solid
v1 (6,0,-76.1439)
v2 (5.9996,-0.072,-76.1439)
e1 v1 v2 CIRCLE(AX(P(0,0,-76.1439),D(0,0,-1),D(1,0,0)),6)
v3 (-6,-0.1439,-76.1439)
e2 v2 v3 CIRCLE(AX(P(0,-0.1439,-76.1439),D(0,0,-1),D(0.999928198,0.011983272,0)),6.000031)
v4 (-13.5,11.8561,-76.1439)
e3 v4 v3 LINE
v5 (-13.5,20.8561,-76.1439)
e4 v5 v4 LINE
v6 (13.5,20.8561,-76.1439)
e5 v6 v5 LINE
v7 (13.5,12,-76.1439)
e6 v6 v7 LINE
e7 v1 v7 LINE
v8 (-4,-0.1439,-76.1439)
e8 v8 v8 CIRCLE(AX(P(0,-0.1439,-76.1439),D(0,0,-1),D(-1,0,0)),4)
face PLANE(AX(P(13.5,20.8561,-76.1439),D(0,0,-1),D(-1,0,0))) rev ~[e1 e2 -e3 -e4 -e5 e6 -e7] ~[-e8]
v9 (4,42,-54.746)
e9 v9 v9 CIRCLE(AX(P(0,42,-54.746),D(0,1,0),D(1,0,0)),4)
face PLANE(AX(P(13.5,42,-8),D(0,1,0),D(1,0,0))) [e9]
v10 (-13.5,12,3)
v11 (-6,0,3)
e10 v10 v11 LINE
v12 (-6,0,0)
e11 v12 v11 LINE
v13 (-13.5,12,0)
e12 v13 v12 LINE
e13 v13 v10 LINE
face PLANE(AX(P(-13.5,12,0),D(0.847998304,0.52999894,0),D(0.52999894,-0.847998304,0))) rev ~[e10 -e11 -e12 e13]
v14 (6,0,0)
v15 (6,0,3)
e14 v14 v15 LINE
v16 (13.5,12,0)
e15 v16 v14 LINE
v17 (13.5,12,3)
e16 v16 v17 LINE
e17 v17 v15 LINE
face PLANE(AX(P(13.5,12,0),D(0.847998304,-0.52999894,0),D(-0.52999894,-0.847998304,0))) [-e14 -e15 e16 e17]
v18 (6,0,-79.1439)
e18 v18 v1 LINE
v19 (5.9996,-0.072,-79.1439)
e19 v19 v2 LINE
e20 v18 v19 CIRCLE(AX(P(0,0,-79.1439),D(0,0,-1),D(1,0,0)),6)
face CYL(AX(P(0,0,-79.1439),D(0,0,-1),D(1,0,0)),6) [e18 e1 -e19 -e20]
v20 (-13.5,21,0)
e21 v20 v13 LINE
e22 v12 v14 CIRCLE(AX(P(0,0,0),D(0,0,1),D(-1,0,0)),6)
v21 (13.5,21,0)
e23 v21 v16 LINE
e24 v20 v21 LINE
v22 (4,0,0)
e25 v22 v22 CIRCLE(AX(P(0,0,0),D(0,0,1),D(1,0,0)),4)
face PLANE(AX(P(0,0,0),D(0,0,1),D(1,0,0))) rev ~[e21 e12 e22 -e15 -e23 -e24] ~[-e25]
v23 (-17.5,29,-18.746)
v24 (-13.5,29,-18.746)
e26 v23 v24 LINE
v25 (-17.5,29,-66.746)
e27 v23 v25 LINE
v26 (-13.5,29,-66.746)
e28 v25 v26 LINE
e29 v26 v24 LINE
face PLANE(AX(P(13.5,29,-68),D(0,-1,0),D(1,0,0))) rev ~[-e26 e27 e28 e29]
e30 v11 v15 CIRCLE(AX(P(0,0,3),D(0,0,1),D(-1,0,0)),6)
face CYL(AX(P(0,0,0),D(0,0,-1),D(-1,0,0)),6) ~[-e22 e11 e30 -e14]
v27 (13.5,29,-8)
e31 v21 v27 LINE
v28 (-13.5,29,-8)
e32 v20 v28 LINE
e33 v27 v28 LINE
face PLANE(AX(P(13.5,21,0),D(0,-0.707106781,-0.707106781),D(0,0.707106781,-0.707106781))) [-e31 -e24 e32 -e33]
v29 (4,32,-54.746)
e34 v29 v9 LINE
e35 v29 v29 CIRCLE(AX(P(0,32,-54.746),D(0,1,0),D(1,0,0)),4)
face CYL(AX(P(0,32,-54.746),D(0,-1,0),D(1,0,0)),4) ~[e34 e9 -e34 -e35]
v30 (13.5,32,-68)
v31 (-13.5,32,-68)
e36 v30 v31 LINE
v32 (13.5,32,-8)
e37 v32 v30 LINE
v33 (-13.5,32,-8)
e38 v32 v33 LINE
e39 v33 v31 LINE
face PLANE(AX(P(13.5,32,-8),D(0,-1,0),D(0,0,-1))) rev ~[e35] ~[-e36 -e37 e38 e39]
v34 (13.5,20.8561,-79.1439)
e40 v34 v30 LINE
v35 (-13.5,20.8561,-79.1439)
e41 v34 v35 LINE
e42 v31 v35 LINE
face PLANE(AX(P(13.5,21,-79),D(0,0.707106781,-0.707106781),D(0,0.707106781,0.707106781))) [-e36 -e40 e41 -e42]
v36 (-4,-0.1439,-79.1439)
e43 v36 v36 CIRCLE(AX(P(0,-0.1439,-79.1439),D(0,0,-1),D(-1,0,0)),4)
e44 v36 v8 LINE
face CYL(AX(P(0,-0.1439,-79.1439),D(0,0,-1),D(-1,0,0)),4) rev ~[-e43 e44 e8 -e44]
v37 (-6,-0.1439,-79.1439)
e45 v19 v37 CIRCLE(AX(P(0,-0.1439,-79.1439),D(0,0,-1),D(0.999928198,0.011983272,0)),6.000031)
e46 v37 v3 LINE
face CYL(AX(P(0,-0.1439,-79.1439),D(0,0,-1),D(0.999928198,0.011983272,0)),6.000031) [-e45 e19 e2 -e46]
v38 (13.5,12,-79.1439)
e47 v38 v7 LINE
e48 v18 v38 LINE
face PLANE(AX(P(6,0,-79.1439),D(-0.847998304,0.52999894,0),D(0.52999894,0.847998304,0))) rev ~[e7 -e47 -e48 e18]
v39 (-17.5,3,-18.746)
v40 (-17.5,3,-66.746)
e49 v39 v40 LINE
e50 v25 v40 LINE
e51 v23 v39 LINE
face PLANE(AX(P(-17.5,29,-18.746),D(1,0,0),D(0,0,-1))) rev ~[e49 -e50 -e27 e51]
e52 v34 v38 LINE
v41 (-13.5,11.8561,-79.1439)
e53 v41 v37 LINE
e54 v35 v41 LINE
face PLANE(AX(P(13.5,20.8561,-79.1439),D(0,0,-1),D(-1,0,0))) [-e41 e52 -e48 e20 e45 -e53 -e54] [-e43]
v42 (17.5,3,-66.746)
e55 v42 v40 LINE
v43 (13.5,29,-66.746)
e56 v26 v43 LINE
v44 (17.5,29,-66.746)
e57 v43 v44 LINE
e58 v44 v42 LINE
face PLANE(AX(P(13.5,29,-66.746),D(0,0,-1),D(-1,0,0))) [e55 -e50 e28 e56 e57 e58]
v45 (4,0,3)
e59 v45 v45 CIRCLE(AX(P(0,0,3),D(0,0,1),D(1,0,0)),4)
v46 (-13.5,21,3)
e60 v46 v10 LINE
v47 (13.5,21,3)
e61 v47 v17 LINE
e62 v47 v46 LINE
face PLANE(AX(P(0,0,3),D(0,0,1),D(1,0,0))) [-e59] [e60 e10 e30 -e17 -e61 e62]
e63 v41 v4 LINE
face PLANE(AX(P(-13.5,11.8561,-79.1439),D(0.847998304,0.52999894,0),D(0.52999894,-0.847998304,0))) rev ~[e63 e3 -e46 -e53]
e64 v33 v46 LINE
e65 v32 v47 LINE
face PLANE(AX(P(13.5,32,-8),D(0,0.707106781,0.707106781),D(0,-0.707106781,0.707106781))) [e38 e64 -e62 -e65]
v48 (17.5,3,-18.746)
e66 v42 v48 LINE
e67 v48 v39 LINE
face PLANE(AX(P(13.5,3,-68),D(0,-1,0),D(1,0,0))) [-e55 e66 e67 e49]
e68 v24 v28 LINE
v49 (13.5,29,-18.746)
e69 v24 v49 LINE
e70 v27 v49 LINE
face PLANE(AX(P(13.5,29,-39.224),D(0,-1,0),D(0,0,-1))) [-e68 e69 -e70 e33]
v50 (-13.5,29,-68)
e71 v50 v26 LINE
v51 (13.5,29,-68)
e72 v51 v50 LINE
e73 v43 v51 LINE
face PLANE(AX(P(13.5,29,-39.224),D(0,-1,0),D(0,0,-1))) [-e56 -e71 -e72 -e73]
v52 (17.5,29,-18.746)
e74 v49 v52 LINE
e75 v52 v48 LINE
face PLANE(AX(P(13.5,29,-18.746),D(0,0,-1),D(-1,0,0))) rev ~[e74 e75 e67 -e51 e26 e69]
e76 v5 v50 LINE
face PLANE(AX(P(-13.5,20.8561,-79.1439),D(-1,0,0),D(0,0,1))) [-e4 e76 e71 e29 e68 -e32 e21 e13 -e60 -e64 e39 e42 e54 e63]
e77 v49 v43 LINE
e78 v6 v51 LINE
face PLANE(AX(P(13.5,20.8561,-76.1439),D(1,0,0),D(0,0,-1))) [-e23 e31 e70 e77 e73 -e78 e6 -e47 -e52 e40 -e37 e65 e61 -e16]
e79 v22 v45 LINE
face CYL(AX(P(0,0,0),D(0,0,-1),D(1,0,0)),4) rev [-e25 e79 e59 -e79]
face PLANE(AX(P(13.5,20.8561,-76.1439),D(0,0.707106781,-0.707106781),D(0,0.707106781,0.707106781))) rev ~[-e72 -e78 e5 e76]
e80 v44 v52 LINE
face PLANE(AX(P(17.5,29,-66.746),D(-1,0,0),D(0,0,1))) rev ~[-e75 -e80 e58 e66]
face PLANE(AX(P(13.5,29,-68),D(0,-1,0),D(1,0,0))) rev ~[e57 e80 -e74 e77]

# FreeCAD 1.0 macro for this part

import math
import FreeCAD as App
import Part
import Sketcher
Q = App.Units.Quantity

doc = App.newDocument("Part")
params = doc.addObject("Spreadsheet::Sheet", "Params")
for row, (alias, value) in enumerate([
    ("sketch1_diameter", "8 mm"),
    ("sketch1_radius", "6 mm"),
    ("sketch1_width", "27 mm"),
    ("sketch1_height", "9 mm"),
    ("pad1_length", "3 mm"),
    ("sketch2_height", "60 mm"),
    ("sketch2_height2", "3 mm"),
    ("pad2_length", "27 mm"),
    ("sketch3_width", "27 mm"),
    ("sketch3_height", "3 mm"),
    ("pad3_length", "45 mm"),
    ("sketch4_width", "35 mm"),
    ("sketch4_height", "48 mm"),
    ("pad4_length", "26 mm"),
    ("sketch5_diameter", "8 mm"),
    ("pad5_length", "10 mm"),
    ("sketch6_diameter", "8 mm"),
    ("sketch6_radius", "6 mm"),
    ("sketch6_width", "27 mm"),
    ("sketch6_height", "36 mm"),
    ("pocket1_length", "4 mm"),
], start=1):
    params.set(f"A{row}", alias)
    params.set(f"B{row}", "=" + value)
    params.setAlias(f"B{row}", alias)

body = doc.addObject("PartDesign::Body", "Body")

# Sketch on XY plane
sketch1 = body.newObject("Sketcher::SketchObject", "Sketch")
sketch1.AttachmentSupport = (doc.getObject("XY_Plane"), [""])
sketch1.MapMode = "FlatFace"
sketch1.addGeometry([
    Part.LineSegment(App.Vector(-13.5, 12, 0), App.Vector(-6, 0, 0)),  # 0
    Part.ArcOfCircle(Part.Circle(App.Vector(0, 0, 0), App.Vector(0, 0, 1), 6), math.radians(180), math.radians(360)),  # 1
    Part.LineSegment(App.Vector(6, 0, 0), App.Vector(13.5, 12, 0)),  # 2
    Part.LineSegment(App.Vector(13.5, 12, 0), App.Vector(13.5, 21, 0)),  # 3
    Part.LineSegment(App.Vector(13.5, 21, 0), App.Vector(-13.5, 21, 0)),  # 4
    Part.LineSegment(App.Vector(-13.5, 21, 0), App.Vector(-13.5, 12, 0)),  # 5
    Part.Circle(App.Vector(0, 0, 0), App.Vector(0, 0, 1), 4),  # 6
], False)
sketch1.addConstraint([
    Sketcher.Constraint("Coincident", 0, 2, 1, 1),
    Sketcher.Constraint("Coincident", 1, 2, 2, 1),
    Sketcher.Constraint("Coincident", 2, 2, 3, 1),
    Sketcher.Constraint("Coincident", 3, 2, 4, 1),
    Sketcher.Constraint("Coincident", 4, 2, 5, 1),
    Sketcher.Constraint("Coincident", 5, 2, 0, 1),
    Sketcher.Constraint("Vertical", 3),
    Sketcher.Constraint("Horizontal", 4),
    Sketcher.Constraint("Vertical", 5),
    Sketcher.Constraint("Coincident", 1, 3, -1, 1),
    Sketcher.Constraint("Coincident", 6, 3, -1, 1),
    Sketcher.Constraint("Symmetric", 2, 2, 5, 2, -2),
    Sketcher.Constraint("PointOnObject", 0, 2, -1),
    Sketcher.Constraint("PointOnObject", 1, 2, -1),
    Sketcher.Constraint("Diameter", 6, Q("8 mm")),
    Sketcher.Constraint("Radius", 1, Q("6 mm")),
    Sketcher.Constraint("DistanceX", 4, 2, 4, 1, Q("27 mm")),
    Sketcher.Constraint("DistanceY", 3, 1, 3, 2, Q("9 mm")),
    Sketcher.Constraint("DistanceY", -1, 1, 2, 2, Q("12 mm")),
])
sketch1.setExpression("Constraints[14]", "Params.sketch1_diameter")
sketch1.setExpression("Constraints[15]", "Params.sketch1_radius")
sketch1.setExpression("Constraints[16]", "Params.sketch1_width")
sketch1.setExpression("Constraints[17]", "Params.sketch1_height")
pad1 = body.newObject("PartDesign::Pad", "Pad")
pad1.Profile = sketch1
pad1.setExpression("Length", "Params.pad1_length")

# Sketch on YZ plane
sketch2 = body.newObject("Sketcher::SketchObject", "Sketch001")
sketch2.AttachmentSupport = (doc.getObject("YZ_Plane"), [""])
sketch2.MapMode = "FlatFace"
sketch2.AttachmentOffset = App.Placement(App.Vector(0, 0, 13.5), App.Rotation())
sketch2.addGeometry([
    Part.LineSegment(App.Vector(32, -68, 0), App.Vector(32, -8, 0)),  # 0
    Part.LineSegment(App.Vector(32, -8, 0), App.Vector(21, 3, 0)),  # 1
    Part.LineSegment(App.Vector(21, 3, 0), App.Vector(21, 0, 0)),  # 2
    Part.LineSegment(App.Vector(21, 0, 0), App.Vector(29, -8, 0)),  # 3
    Part.LineSegment(App.Vector(29, -8, 0), App.Vector(29, -68, 0)),  # 4
    Part.LineSegment(App.Vector(29, -68, 0), App.Vector(20.9, -76.1, 0)),  # 5
    Part.LineSegment(App.Vector(20.9, -76.1, 0), App.Vector(20.9, -79.1, 0)),  # 6
    Part.LineSegment(App.Vector(20.9, -79.1, 0), App.Vector(32, -68, 0)),  # 7
], False)
sketch2.addConstraint([
    Sketcher.Constraint("Coincident", 0, 2, 1, 1),
    Sketcher.Constraint("Coincident", 1, 2, 2, 1),
    Sketcher.Constraint("Coincident", 2, 2, 3, 1),
    Sketcher.Constraint("Coincident", 3, 2, 4, 1),
    Sketcher.Constraint("Coincident", 4, 2, 5, 1),
    Sketcher.Constraint("Coincident", 5, 2, 6, 1),
    Sketcher.Constraint("Coincident", 6, 2, 7, 1),
    Sketcher.Constraint("Coincident", 7, 2, 0, 1),
    Sketcher.Constraint("Vertical", 0),
    Sketcher.Constraint("Vertical", 2),
    Sketcher.Constraint("Vertical", 4),
    Sketcher.Constraint("Vertical", 6),
    Sketcher.Constraint("PointOnObject", 2, 2, -1),
    Sketcher.Constraint("Parallel", 1, 3),
    Sketcher.Constraint("Perpendicular", 3, 5),
    Sketcher.Constraint("Parallel", 5, 7),
    Sketcher.Constraint("Horizontal", 0, 2, 3, 2),
    Sketcher.Constraint("Horizontal", 4, 2, 7, 2),
    Sketcher.Constraint("Equal", 2, 6),
    Sketcher.Constraint("DistanceY", 0, 1, 0, 2, Q("60 mm")),
    Sketcher.Constraint("DistanceY", 2, 2, 2, 1, Q("3 mm")),
    Sketcher.Constraint("DistanceX", -1, 1, 0, 2, Q("32 mm")),
    Sketcher.Constraint("DistanceY", 0, 2, -1, 1, Q("8 mm")),
    Sketcher.Constraint("DistanceX", -1, 1, 5, 2, Q("20.856 mm")),
])
sketch2.setExpression("Constraints[19]", "Params.sketch2_height")
sketch2.setExpression("Constraints[20]", "Params.sketch2_height2")
pad2 = body.newObject("PartDesign::Pad", "Pad001")
pad2.Profile = sketch2
pad2.setExpression("Length", "Params.pad2_length")
pad2.Reversed = True

# Sketch on XZ plane
sketch3 = body.newObject("Sketcher::SketchObject", "Sketch002")
sketch3.AttachmentSupport = (doc.getObject("XZ_Plane"), [""])
sketch3.MapMode = "FlatFace"
sketch3.AttachmentOffset = App.Placement(App.Vector(0, 0, -20.8561), App.Rotation())
sketch3.addGeometry([
    Part.LineSegment(App.Vector(-13.5, -79.1, 0), App.Vector(13.5, -79.1, 0)),
    Part.LineSegment(App.Vector(13.5, -79.1, 0), App.Vector(13.5, -76.1, 0)),
    Part.LineSegment(App.Vector(13.5, -76.1, 0), App.Vector(-13.5, -76.1, 0)),
    Part.LineSegment(App.Vector(-13.5, -76.1, 0), App.Vector(-13.5, -79.1, 0)),
], False)
sketch3.addConstraint([
    Sketcher.Constraint("Coincident", 0, 2, 1, 1),
    Sketcher.Constraint("Coincident", 1, 2, 2, 1),
    Sketcher.Constraint("Coincident", 2, 2, 3, 1),
    Sketcher.Constraint("Coincident", 3, 2, 0, 1),
    Sketcher.Constraint("Horizontal", 0),
    Sketcher.Constraint("Vertical", 1),
    Sketcher.Constraint("Horizontal", 2),
    Sketcher.Constraint("Vertical", 3),
    Sketcher.Constraint("DistanceX", 0, 1, 0, 2, Q("27 mm")),
    Sketcher.Constraint("DistanceY", 1, 1, 1, 2, Q("3 mm")),
    Sketcher.Constraint("DistanceX", -1, 1, 0, 2, Q("13.5 mm")),
    Sketcher.Constraint("DistanceY", 0, 2, -1, 1, Q("79.144 mm")),
])
sketch3.setExpression("Constraints[8]", "Params.sketch3_width")
sketch3.setExpression("Constraints[9]", "Params.sketch3_height")
pad3 = body.newObject("PartDesign::Pad", "Pad002")
pad3.Profile = sketch3
pad3.setExpression("Length", "Params.pad3_length")

# Sketch on XZ plane
sketch4 = body.newObject("Sketcher::SketchObject", "Sketch003")
sketch4.AttachmentSupport = (doc.getObject("XZ_Plane"), [""])
sketch4.MapMode = "FlatFace"
sketch4.AttachmentOffset = App.Placement(App.Vector(0, 0, -29), App.Rotation())
sketch4.addGeometry([
    Part.LineSegment(App.Vector(18, -67, 0), App.Vector(18, -19, 0)),
    Part.LineSegment(App.Vector(18, -19, 0), App.Vector(-18, -19, 0)),
    Part.LineSegment(App.Vector(-18, -19, 0), App.Vector(-18, -67, 0)),
    Part.LineSegment(App.Vector(-18, -67, 0), App.Vector(18, -67, 0)),
], False)
sketch4.addConstraint([
    Sketcher.Constraint("Coincident", 0, 2, 1, 1),
    Sketcher.Constraint("Coincident", 1, 2, 2, 1),
    Sketcher.Constraint("Coincident", 2, 2, 3, 1),
    Sketcher.Constraint("Coincident", 3, 2, 0, 1),
    Sketcher.Constraint("Vertical", 0),
    Sketcher.Constraint("Horizontal", 1),
    Sketcher.Constraint("Vertical", 2),
    Sketcher.Constraint("Horizontal", 3),
    Sketcher.Constraint("DistanceX", 1, 2, 1, 1, Q("35 mm")),
    Sketcher.Constraint("DistanceY", 0, 1, 0, 2, Q("48 mm")),
    Sketcher.Constraint("DistanceX", -1, 1, 0, 2, Q("17.5 mm")),
    Sketcher.Constraint("DistanceY", 0, 2, -1, 1, Q("18.746 mm")),
])
sketch4.setExpression("Constraints[8]", "Params.sketch4_width")
sketch4.setExpression("Constraints[9]", "Params.sketch4_height")
pad4 = body.newObject("PartDesign::Pad", "Pad003")
pad4.Profile = sketch4
pad4.setExpression("Length", "Params.pad4_length")

# Sketch on XZ plane
sketch5 = body.newObject("Sketcher::SketchObject", "Sketch004")
sketch5.AttachmentSupport = (doc.getObject("XZ_Plane"), [""])
sketch5.MapMode = "FlatFace"
sketch5.AttachmentOffset = App.Placement(App.Vector(0, 0, -32), App.Rotation())
sketch5.addGeometry(Part.Circle(App.Vector(0, -54.7, 0), App.Vector(0, 0, 1), 4), False)
sketch5.addConstraint([
    Sketcher.Constraint("PointOnObject", 0, 3, -2),
    Sketcher.Constraint("Diameter", 0, Q("8 mm")),
    Sketcher.Constraint("DistanceY", 0, 3, -1, 1, Q("54.746 mm")),
])
sketch5.setExpression("Constraints[1]", "Params.sketch5_diameter")
pad5 = body.newObject("PartDesign::Pad", "Pad004")
pad5.Profile = sketch5
pad5.setExpression("Length", "Params.pad5_length")
pad5.Reversed = True

# Sketch on XY plane
sketch6 = body.newObject("Sketcher::SketchObject", "Sketch005")
sketch6.AttachmentSupport = (doc.getObject("XY_Plane"), [""])
sketch6.MapMode = "FlatFace"
sketch6.AttachmentOffset = App.Placement(App.Vector(0, 0, -79.1439), App.Rotation())
sketch6.addGeometry([
    Part.Circle(App.Vector(0, -0.14, 0), App.Vector(0, 0, 1), 4),  # 0
    Part.ArcOfCircle(Part.Circle(App.Vector(0, -0.14, 0), App.Vector(0, 0, 1), 6), math.radians(180), math.radians(361)),  # 1
    Part.ArcOfCircle(Part.Circle(App.Vector(0, 0, 0), App.Vector(0, 0, 1), 6), math.radians(-0.69), math.radians(0)),  # 2
    Part.LineSegment(App.Vector(6, 0, 0), App.Vector(13.5, 12, 0)),  # 3
    Part.LineSegment(App.Vector(13.5, 12, 0), App.Vector(13.5, -24.14, 0)),  # 4
    Part.LineSegment(App.Vector(13.5, -24.14, 0), App.Vector(-13.5, -24.14, 0)),  # 5
    Part.LineSegment(App.Vector(-13.5, -24.14, 0), App.Vector(-13.5, 11.86, 0)),  # 6
    Part.LineSegment(App.Vector(-13.5, 11.86, 0), App.Vector(-6, -0.14, 0)),  # 7
], False)
sketch6.addConstraint([
    Sketcher.Constraint("Coincident", 1, 2, 2, 1),
    Sketcher.Constraint("Coincident", 2, 2, 3, 1),
    Sketcher.Constraint("Coincident", 3, 2, 4, 1),
    Sketcher.Constraint("Coincident", 4, 2, 5, 1),
    Sketcher.Constraint("Coincident", 5, 2, 6, 1),
    Sketcher.Constraint("Coincident", 6, 2, 7, 1),
    Sketcher.Constraint("Coincident", 7, 2, 1, 1),
    Sketcher.Constraint("Vertical", 4),
    Sketcher.Constraint("Horizontal", 5),
    Sketcher.Constraint("Vertical", 6),
    Sketcher.Constraint("Coincident", 2, 3, -1, 1),
    Sketcher.Constraint("Coincident", 1, 3, 0, 3),
    Sketcher.Constraint("Equal", 1, 2),
    Sketcher.Constraint("PointOnObject", 0, 3, -2),
    Sketcher.Constraint("PointOnObject", 2, 2, -1),
    Sketcher.Constraint("Horizontal", 1, 3, 7, 2),
    Sketcher.Constraint("Equal", 3, 7),
    Sketcher.Constraint("Diameter", 0, Q("8 mm")),
    Sketcher.Constraint("Radius", 1, Q("6 mm")),
    Sketcher.Constraint("DistanceY", -1, 1, 3, 2, Q("12 mm")),
    Sketcher.Constraint("DistanceY", 0, 3, 6, 2, Q("12 mm")),
    Sketcher.Constraint("DistanceX", 5, 2, 5, 1, Q("27 mm")),
    Sketcher.Constraint("DistanceY", 6, 1, 6, 2, Q("36 mm")),
    Sketcher.Constraint("DistanceY", 4, 2, 4, 1, Q("36.144 mm")),
])
sketch6.setExpression("Constraints[17]", "Params.sketch6_diameter")
sketch6.setExpression("Constraints[18]", "Params.sketch6_radius")
sketch6.setExpression("Constraints[21]", "Params.sketch6_width")
sketch6.setExpression("Constraints[22]", "Params.sketch6_height")
pocket1 = body.newObject("PartDesign::Pocket", "Pocket")
pocket1.Profile = sketch6
pocket1.setExpression("Length", "Params.pocket1_length")
pocket1.Reversed = True

doc.recompute()
